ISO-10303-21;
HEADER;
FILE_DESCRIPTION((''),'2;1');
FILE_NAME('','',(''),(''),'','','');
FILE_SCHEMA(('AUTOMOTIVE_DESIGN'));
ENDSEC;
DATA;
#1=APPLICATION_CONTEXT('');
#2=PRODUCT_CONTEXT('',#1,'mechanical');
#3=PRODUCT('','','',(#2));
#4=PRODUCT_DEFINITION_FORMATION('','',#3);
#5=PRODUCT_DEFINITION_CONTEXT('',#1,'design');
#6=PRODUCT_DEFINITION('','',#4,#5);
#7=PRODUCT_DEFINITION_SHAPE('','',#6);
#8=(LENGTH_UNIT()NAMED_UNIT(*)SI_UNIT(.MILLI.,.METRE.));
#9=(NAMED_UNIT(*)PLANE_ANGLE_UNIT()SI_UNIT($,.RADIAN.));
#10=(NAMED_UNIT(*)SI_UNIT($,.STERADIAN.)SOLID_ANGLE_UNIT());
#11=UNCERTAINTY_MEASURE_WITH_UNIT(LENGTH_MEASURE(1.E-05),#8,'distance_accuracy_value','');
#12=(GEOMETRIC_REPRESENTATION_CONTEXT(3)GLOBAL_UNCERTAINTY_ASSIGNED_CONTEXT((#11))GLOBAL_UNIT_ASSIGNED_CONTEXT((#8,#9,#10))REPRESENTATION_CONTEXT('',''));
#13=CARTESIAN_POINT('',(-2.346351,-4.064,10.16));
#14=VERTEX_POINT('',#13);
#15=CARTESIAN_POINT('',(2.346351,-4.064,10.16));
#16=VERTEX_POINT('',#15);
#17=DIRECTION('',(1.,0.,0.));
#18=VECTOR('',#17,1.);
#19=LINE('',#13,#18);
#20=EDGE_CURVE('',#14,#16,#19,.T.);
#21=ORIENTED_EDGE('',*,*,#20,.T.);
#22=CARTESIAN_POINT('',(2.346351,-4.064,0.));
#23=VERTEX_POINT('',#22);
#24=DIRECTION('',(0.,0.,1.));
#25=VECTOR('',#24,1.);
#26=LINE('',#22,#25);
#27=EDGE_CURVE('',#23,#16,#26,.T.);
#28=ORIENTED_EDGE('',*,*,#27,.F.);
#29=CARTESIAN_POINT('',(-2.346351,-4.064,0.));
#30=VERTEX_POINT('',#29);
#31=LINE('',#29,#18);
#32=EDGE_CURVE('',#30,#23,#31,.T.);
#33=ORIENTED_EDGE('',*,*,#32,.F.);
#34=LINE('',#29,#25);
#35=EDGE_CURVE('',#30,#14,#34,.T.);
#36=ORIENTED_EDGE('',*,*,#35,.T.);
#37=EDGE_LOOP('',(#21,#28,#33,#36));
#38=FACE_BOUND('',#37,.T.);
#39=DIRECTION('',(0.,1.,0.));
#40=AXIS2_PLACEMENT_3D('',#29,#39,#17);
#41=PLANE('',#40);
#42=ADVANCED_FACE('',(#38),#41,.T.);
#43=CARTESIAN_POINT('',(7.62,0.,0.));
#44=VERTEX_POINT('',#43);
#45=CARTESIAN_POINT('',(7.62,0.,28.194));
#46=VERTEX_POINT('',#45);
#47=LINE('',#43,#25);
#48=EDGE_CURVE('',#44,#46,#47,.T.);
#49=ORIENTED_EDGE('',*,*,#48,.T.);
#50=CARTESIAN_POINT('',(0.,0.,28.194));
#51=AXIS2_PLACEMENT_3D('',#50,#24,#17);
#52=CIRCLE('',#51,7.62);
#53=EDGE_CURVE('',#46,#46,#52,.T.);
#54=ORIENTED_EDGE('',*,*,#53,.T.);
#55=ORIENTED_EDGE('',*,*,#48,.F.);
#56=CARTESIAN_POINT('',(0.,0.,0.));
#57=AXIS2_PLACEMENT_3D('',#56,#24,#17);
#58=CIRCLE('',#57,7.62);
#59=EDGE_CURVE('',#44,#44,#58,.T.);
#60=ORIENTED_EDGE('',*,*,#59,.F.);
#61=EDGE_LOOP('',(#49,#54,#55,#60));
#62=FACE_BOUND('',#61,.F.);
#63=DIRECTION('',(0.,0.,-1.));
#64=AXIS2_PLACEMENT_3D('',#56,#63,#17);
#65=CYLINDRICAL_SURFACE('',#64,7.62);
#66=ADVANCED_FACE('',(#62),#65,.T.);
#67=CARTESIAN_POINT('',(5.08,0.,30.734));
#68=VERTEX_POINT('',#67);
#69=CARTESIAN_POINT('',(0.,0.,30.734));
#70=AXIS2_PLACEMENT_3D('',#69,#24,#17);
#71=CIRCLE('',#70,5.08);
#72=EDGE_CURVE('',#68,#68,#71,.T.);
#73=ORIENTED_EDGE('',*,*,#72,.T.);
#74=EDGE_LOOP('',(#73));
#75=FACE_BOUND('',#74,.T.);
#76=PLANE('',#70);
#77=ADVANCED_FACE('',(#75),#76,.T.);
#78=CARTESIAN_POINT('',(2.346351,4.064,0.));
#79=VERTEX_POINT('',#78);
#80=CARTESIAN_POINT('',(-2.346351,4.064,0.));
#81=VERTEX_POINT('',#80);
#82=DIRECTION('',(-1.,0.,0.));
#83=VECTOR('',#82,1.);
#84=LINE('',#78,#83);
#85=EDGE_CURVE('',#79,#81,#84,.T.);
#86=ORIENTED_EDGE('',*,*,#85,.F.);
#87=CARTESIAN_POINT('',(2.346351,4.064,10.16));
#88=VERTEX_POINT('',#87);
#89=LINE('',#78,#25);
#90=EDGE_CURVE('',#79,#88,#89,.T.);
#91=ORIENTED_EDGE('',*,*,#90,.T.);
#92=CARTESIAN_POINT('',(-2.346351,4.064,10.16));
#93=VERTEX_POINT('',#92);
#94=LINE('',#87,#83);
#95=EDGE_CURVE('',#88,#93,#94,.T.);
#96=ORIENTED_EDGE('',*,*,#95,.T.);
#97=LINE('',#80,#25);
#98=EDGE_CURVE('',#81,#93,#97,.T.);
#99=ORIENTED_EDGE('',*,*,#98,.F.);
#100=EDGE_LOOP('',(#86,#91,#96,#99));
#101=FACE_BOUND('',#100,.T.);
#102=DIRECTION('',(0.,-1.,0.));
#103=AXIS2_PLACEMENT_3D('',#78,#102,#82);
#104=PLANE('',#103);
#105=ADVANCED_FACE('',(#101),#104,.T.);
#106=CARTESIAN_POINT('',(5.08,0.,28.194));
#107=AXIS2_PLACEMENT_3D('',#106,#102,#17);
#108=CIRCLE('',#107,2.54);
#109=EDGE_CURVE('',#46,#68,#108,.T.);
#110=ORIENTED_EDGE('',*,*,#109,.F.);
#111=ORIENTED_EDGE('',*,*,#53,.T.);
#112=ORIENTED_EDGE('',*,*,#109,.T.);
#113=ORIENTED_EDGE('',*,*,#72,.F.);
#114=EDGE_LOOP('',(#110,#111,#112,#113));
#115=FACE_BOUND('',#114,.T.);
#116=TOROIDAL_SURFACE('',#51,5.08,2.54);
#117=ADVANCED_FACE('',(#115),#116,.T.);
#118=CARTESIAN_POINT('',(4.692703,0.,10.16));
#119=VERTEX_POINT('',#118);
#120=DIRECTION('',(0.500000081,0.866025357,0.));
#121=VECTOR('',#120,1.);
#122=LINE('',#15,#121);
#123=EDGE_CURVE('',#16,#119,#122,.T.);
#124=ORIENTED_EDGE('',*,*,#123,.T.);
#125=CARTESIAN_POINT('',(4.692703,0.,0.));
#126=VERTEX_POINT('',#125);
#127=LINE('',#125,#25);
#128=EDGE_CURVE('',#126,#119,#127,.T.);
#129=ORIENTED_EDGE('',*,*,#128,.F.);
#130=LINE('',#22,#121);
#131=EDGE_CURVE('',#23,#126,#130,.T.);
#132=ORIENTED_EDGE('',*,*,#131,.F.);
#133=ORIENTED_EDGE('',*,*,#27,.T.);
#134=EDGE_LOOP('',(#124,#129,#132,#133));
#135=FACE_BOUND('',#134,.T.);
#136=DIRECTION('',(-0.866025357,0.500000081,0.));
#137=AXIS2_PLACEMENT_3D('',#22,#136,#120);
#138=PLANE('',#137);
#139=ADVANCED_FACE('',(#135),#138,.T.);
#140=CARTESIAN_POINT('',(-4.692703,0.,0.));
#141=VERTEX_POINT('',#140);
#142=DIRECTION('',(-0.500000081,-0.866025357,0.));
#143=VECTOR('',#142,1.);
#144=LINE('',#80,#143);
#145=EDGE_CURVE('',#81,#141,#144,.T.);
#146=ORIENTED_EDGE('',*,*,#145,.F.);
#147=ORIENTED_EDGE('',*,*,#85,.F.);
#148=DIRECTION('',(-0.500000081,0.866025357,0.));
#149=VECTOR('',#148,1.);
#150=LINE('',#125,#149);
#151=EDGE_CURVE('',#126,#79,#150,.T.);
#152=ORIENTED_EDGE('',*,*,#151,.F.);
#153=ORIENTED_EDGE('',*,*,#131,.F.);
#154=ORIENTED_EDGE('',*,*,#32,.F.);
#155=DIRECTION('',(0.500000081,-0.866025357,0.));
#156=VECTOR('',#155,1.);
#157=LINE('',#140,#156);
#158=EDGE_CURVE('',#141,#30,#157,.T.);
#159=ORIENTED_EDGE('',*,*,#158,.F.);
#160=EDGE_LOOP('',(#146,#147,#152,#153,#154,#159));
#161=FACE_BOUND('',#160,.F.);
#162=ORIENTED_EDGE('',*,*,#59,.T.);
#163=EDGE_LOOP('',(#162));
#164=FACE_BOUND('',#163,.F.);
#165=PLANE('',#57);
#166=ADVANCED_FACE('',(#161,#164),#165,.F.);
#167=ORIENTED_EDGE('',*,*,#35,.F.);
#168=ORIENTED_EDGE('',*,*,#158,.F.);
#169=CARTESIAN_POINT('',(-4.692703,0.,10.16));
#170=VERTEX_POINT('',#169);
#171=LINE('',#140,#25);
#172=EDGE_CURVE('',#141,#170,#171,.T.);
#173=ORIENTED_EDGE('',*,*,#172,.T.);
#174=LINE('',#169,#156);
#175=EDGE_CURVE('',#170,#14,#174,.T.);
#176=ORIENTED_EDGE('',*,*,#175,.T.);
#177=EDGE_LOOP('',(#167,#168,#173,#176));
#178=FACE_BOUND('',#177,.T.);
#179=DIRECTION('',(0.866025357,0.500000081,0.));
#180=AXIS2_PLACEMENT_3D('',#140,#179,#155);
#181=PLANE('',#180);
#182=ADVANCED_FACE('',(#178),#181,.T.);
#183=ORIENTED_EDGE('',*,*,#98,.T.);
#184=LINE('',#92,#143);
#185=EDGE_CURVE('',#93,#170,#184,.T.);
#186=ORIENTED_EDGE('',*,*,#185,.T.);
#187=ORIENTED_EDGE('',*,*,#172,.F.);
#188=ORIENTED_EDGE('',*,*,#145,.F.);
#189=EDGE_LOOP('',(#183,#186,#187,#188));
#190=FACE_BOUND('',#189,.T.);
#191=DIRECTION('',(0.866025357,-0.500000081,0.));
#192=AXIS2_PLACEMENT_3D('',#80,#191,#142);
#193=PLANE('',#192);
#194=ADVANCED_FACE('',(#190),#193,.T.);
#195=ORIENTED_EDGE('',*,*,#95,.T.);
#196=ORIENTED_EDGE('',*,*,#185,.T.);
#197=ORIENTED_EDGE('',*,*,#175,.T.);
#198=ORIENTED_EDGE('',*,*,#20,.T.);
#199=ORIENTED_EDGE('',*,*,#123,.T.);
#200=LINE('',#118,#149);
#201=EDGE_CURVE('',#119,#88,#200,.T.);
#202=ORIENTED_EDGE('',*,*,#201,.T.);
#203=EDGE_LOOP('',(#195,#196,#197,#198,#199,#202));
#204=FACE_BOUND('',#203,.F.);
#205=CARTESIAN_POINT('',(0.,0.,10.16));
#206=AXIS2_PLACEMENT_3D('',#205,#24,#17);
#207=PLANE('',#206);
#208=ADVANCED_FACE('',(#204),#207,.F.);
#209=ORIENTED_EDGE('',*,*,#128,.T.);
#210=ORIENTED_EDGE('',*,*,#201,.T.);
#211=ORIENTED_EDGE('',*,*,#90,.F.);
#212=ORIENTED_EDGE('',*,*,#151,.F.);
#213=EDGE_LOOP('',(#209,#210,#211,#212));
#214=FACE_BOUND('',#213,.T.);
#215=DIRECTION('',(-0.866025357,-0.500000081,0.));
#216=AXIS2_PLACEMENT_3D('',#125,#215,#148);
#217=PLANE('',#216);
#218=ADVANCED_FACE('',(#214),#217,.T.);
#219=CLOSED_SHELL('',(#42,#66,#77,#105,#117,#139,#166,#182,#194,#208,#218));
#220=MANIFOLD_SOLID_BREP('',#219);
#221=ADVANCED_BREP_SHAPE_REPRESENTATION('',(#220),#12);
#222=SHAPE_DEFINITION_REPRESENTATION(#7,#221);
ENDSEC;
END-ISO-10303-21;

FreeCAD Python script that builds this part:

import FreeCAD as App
import Part
import Sketcher
Q = App.Units.Quantity


def edges_at(feature, points):
    """Names of the edges that pass closest to the given points."""
    edges = feature.Shape.Edges
    near = lambda p: min(range(len(edges)), key=lambda i: edges[i].distToShape(Part.Vertex(*p))[0])
    return sorted({f"Edge{near(p) + 1}" for p in points})


def add_polygon(sketch, points):
    """Adds a closed chain of lines whose ends are joined by coincident constraints."""
    first, n = sketch.GeometryCount, len(points)
    for a, b in zip(points, points[1:] + points[:1]):
        sketch.addGeometry(Part.LineSegment(App.Vector(*a, 0), App.Vector(*b, 0)), False)
    for i in range(n):
        sketch.addConstraint(Sketcher.Constraint("Coincident", first + i, 2, first + (i + 1) % n, 1))

doc = App.newDocument("Part")
params = doc.addObject("Spreadsheet::Sheet", "Params")
for row, (alias, value) in enumerate([
    ("sketch1_diameter", "0.6 in"),
    ("pad1_length", "1.21 in"),
    ("fillet_radius", "0.1 in"),
    ("pocket1_length", "0.4 in"),
], start=1):
    params.set(f"A{row}", alias)
    params.set(f"B{row}", "=" + value)
    params.setAlias(f"B{row}", alias)

body = doc.addObject("PartDesign::Body", "Body")

sketch1 = doc.addObject("Sketcher::SketchObject", "Sketch")
body.addObject(sketch1)
sketch1.AttachmentSupport = (doc.XY_Plane, [""])
sketch1.MapMode = "FlatFace"
sketch1.addGeometry(Part.Circle(App.Vector(0, 0, 0), App.Vector(0, 0, 1), 8), False)
sketch1.addConstraint([
    Sketcher.Constraint("Coincident", 0, 3, -1, 1),
    Sketcher.Constraint("Diameter", 0, Q("0.6 in")),
])
sketch1.setExpression("Constraints[1]", "Params.sketch1_diameter")
pad1 = doc.addObject("PartDesign::Pad", "Pad")
body.addObject(pad1)
pad1.Profile = sketch1
pad1.setExpression("Length", "Params.pad1_length")
doc.recompute()

fillet = doc.addObject("PartDesign::Fillet", "Fillet")
body.addObject(fillet)
fillet.Base = (pad1, edges_at(pad1, [(-7.62, 0, 30.734)]))
fillet.setExpression("Radius", "Params.fillet_radius")

sketch2 = doc.addObject("Sketcher::SketchObject", "Sketch001")
body.addObject(sketch2)
sketch2.AttachmentSupport = (doc.XY_Plane, [""])
sketch2.MapMode = "FlatFace"
add_polygon(sketch2, [(2.3, 4.1), (-2.3, 4.1), (-4.7, 0), (-2.3, -4.1), (2.3, -4.1), (4.7, 0)])
sketch2.addConstraint([
    Sketcher.Constraint("Horizontal", 0),
    Sketcher.Constraint("Horizontal", 3),
    Sketcher.Constraint("Symmetric", 0, 2, 3, 2, -1, 1),
    Sketcher.Constraint("Symmetric", 1, 2, 4, 2, -1, 1),
    Sketcher.Constraint("PointOnObject", 1, 2, -1),
    Sketcher.Constraint("Parallel", 2, 5),
    Sketcher.Constraint("Vertical", 0, 2, 2, 2),
    Sketcher.Constraint("Angle", 1, Q("-120.000005 deg")),
    Sketcher.Constraint("DistanceY", -1, 1, 0, 2, Q("0.16 in")),
    Sketcher.Constraint("DistanceX", 0, 2, 0, 1, 4.692702),
])
pocket1 = doc.addObject("PartDesign::Pocket", "Pocket")
body.addObject(pocket1)
pocket1.Profile = sketch2
pocket1.setExpression("Length", "Params.pocket1_length")
pocket1.Reversed = True

doc.recompute()
